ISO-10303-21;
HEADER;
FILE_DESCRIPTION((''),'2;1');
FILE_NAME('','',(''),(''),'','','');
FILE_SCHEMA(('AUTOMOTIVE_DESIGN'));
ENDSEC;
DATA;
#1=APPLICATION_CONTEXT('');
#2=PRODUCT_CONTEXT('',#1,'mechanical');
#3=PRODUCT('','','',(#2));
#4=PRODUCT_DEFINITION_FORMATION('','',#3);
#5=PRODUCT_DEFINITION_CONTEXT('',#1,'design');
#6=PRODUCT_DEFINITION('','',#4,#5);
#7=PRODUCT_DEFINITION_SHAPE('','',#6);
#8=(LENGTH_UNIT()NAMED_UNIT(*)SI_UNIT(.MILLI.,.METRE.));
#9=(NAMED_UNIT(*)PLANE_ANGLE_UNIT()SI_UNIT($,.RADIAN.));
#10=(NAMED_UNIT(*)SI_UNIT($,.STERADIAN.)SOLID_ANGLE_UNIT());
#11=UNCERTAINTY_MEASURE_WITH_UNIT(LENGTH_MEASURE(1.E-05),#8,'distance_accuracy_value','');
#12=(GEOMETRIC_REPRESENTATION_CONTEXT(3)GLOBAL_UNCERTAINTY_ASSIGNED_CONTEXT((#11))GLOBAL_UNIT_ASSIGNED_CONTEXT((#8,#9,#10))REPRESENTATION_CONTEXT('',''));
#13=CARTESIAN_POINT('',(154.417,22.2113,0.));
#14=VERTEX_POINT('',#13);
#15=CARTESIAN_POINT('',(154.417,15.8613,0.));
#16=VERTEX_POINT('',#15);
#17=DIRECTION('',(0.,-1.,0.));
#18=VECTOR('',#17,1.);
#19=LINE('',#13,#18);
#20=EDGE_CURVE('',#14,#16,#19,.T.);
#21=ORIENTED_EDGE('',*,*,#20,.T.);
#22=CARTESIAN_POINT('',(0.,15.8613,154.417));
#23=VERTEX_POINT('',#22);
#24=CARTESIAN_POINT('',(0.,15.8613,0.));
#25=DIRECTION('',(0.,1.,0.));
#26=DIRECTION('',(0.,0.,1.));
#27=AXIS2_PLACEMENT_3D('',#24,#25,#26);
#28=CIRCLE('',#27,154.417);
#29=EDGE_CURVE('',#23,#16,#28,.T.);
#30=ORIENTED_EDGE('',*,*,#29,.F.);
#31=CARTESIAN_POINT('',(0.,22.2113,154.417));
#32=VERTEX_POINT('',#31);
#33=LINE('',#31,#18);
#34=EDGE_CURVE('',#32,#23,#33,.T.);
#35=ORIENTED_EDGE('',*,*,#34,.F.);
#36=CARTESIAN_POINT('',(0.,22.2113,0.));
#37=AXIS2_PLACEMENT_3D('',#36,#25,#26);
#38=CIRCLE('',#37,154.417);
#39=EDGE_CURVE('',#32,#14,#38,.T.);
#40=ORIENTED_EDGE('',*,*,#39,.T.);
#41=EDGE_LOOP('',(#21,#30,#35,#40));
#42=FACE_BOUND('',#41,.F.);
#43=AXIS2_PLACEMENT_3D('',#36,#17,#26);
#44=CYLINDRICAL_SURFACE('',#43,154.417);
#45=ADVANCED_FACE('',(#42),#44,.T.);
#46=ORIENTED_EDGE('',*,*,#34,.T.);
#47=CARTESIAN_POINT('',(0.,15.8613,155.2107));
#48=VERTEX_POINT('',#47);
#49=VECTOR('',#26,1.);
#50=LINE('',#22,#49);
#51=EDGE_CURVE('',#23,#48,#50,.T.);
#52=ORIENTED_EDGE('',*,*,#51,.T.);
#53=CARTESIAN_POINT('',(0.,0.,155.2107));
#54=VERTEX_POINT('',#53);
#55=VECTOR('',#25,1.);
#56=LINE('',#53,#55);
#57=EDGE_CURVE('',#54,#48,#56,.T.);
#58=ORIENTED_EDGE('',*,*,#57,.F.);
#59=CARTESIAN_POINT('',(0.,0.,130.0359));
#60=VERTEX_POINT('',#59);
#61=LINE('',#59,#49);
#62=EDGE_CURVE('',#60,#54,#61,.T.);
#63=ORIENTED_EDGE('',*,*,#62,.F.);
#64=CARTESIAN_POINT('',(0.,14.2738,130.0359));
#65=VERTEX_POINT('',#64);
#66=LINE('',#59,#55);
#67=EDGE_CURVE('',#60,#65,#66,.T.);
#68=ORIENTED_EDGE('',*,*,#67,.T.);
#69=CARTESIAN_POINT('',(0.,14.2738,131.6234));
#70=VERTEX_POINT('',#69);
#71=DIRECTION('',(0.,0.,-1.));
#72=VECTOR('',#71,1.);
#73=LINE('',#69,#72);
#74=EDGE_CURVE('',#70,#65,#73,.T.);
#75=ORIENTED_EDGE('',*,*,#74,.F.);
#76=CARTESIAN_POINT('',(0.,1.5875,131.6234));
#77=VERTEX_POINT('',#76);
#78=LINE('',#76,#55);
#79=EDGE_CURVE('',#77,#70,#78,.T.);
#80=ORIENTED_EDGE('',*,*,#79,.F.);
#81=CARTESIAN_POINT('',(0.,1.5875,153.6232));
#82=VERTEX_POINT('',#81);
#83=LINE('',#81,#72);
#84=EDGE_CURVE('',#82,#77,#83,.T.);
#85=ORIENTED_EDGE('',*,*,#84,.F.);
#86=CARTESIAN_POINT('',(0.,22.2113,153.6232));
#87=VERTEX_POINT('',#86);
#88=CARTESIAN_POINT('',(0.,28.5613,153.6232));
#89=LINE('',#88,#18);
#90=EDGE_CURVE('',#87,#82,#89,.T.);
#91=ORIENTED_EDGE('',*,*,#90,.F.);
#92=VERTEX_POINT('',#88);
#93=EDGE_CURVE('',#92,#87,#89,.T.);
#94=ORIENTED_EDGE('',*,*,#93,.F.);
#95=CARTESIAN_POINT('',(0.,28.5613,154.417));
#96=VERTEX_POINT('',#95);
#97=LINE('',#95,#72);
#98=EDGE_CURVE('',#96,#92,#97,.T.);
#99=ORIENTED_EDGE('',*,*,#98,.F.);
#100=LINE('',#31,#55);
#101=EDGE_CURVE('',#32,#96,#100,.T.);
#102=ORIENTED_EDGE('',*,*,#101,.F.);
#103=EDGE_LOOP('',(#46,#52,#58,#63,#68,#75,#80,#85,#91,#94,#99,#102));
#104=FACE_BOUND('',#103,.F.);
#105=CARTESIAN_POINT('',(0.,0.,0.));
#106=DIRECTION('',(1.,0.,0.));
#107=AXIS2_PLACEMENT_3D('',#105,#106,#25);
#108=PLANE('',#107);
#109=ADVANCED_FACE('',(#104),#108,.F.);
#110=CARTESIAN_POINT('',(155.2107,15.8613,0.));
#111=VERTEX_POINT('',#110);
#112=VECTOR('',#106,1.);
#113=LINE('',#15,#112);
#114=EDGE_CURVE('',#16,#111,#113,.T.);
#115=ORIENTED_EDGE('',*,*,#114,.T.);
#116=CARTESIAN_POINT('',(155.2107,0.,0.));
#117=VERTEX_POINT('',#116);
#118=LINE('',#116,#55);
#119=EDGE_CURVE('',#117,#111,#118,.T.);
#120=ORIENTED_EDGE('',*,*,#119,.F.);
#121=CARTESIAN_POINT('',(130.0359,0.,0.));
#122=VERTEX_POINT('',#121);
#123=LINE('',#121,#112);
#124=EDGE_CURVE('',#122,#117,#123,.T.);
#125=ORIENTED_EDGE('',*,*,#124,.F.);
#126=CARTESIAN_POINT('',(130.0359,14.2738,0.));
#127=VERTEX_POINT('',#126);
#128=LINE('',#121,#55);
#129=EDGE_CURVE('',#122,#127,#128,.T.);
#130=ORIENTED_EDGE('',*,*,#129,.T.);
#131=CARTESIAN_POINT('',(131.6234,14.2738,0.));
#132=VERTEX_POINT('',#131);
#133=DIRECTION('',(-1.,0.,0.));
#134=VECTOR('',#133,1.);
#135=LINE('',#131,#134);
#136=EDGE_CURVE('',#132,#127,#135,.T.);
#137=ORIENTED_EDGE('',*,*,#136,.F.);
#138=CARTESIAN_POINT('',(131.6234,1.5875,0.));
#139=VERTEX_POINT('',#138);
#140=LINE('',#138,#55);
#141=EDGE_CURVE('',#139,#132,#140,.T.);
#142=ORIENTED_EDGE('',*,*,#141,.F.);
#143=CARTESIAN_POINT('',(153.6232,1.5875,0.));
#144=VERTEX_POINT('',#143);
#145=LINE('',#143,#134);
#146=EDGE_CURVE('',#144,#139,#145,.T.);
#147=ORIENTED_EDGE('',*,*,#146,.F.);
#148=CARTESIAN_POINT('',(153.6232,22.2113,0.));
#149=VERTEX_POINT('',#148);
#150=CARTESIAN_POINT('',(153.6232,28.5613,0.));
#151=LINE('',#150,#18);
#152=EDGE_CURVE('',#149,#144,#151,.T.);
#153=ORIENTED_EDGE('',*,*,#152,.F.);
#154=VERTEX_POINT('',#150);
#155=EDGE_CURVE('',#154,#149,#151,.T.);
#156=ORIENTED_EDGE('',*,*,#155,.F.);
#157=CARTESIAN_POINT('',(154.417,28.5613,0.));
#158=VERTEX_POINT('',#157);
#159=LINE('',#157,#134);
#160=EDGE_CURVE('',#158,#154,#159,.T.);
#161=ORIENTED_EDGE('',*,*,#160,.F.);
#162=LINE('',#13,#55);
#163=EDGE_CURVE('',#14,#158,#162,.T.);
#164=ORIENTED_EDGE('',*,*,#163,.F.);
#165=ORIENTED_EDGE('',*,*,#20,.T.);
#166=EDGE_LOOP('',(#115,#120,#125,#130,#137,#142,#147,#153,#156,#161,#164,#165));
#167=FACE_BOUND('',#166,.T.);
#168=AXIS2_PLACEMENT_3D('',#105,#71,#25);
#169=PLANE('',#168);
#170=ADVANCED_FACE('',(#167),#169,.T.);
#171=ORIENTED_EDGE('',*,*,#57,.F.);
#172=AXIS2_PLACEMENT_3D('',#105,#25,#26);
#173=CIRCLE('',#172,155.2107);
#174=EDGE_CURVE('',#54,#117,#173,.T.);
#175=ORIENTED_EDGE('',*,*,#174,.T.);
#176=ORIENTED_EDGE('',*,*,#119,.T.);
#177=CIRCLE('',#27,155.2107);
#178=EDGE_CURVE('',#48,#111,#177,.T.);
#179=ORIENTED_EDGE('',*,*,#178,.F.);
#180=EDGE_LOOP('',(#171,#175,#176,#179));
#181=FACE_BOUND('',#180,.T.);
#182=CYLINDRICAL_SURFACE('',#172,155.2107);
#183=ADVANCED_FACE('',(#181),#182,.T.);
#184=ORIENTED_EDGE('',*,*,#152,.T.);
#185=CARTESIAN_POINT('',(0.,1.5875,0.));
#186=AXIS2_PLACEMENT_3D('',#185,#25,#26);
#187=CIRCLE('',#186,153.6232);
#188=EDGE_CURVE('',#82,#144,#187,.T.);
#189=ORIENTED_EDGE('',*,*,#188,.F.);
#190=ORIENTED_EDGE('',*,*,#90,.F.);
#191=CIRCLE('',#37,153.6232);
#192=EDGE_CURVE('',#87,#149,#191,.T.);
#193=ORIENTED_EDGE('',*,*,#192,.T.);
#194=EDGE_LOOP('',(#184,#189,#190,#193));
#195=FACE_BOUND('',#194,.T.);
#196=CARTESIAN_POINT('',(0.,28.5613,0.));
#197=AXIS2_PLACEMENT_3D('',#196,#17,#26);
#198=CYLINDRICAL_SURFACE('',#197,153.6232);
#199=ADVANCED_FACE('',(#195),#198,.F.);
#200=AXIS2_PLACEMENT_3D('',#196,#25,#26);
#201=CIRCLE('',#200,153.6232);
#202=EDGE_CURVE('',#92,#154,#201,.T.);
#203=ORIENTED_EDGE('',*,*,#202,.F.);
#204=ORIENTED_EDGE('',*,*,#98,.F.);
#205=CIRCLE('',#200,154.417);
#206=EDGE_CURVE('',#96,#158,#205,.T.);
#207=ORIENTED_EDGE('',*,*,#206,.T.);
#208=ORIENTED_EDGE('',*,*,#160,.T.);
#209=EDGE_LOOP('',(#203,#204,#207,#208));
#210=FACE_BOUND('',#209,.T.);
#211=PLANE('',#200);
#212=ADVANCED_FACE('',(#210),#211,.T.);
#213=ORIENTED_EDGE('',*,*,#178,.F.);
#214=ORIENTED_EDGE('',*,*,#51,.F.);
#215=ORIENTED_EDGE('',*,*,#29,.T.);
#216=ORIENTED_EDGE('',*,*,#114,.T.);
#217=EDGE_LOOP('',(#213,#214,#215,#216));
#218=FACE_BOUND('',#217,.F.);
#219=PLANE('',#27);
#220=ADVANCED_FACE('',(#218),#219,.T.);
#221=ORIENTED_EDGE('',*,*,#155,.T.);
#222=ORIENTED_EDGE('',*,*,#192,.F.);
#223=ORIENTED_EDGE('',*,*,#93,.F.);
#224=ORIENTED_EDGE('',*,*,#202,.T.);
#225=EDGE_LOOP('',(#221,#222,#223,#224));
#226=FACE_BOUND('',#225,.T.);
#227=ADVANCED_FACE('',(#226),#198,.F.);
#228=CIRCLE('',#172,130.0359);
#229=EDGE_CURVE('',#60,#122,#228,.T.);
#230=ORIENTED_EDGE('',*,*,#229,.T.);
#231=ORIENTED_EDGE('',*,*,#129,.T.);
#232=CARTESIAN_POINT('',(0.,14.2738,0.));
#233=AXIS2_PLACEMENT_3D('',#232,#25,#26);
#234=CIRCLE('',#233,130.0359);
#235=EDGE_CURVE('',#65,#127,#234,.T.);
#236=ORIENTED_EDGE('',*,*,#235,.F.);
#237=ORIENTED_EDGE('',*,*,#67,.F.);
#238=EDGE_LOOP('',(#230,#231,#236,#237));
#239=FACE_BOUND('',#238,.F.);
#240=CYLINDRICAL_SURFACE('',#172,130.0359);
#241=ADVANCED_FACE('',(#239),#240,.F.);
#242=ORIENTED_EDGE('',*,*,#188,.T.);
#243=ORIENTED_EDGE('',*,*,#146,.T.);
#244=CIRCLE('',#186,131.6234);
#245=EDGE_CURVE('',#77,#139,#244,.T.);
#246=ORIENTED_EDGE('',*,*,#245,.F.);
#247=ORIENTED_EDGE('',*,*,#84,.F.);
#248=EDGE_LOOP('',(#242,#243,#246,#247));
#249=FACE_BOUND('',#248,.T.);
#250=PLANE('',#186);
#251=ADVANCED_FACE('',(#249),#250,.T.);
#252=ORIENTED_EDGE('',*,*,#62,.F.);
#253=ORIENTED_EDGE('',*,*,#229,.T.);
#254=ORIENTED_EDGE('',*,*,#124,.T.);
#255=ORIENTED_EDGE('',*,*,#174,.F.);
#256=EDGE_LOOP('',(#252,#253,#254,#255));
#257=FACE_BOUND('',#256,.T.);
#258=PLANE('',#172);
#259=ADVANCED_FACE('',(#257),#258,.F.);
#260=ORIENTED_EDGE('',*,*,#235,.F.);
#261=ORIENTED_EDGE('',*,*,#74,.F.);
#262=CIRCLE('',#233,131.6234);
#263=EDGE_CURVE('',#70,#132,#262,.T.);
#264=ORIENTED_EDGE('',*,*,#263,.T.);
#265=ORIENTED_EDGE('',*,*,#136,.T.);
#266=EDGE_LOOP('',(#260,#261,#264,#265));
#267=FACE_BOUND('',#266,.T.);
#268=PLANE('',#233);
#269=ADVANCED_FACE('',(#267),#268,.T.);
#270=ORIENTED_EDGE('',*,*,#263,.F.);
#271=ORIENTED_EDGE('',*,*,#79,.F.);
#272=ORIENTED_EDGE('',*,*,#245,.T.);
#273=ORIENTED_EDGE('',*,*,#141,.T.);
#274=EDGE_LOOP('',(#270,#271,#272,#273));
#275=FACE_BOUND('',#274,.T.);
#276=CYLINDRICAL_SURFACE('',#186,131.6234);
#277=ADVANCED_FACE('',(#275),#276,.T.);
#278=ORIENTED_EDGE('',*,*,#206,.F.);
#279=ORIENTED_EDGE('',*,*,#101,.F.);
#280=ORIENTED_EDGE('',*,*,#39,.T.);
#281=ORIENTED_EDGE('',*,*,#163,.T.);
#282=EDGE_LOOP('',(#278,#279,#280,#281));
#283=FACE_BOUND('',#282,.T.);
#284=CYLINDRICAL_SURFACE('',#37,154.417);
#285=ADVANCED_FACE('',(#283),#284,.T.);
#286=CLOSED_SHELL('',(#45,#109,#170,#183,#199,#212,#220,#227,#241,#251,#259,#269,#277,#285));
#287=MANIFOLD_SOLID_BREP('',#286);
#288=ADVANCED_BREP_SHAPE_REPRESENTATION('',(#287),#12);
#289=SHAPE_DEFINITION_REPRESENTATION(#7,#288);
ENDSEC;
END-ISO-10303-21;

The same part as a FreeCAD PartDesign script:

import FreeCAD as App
import Part
import Sketcher

V = App.Vector
Q = App.Units.Quantity


def add_polygon(sketch, points):
    """Adds a closed chain of lines whose ends are joined by coincident constraints."""
    first, n = sketch.GeometryCount, len(points)
    for a, b in zip(points, points[1:] + points[:1]):
        sketch.addGeometry(Part.LineSegment(App.Vector(*a, 0), App.Vector(*b, 0)), False)
    for i in range(n):
        sketch.addConstraint(Sketcher.Constraint("Coincident", first + i, 2, first + (i + 1) % n, 1))

doc = App.newDocument("Part")
body = doc.addObject("PartDesign::Body", "Body")

# Sketch on YZ plane
sketch1 = body.newObject("Sketcher::SketchObject", "Sketch")
sketch1.AttachmentSupport = (doc.getObject("YZ_Plane"), [""])
sketch1.MapMode = "FlatFace"
add_polygon(sketch1, [(0, 155.2), (0, 130), (14.3, 130), (14.3, 131.6), (1.6, 131.6), (1.6, 153.6), (28.6, 153.6), (28.6, 154.4), (15.9, 154.4), (15.9, 155.2)])  # lines 0-9
sketch1.addConstraint(Sketcher.Constraint("Vertical", 0))
sketch1.addConstraint(Sketcher.Constraint("Horizontal", 1))
sketch1.addConstraint(Sketcher.Constraint("Vertical", 2))
sketch1.addConstraint(Sketcher.Constraint("Horizontal", 3))
sketch1.addConstraint(Sketcher.Constraint("Vertical", 4))
sketch1.addConstraint(Sketcher.Constraint("Horizontal", 5))
sketch1.addConstraint(Sketcher.Constraint("Vertical", 6))
sketch1.addConstraint(Sketcher.Constraint("Horizontal", 7))
sketch1.addConstraint(Sketcher.Constraint("Vertical", 8))
sketch1.addConstraint(Sketcher.Constraint("Horizontal", 9))
sketch1.addConstraint(Sketcher.Constraint("PointOnObject", 0, 2, -2))
sketch1.addConstraint(Sketcher.Constraint("Equal", 6, 8))
sketch1.addConstraint(Sketcher.Constraint("DistanceY", 2, 1, 2, 2, Q("0.0625 in")))
sketch1.addConstraint(Sketcher.Constraint("DistanceY", 6, 1, 6, 2, Q("0.031252 in")))
sketch1.addConstraint(Sketcher.Constraint("DistanceX", 7, 2, 7, 1, Q("0.5 in")))
sketch1.addConstraint(Sketcher.Constraint("DistanceX", -1, 1, 3, 2, Q("0.0625 in")))
sketch1.addConstraint(Sketcher.Constraint("DistanceX", 2, 2, 7, 2, Q("0.0625 in")))
sketch1.addConstraint(Sketcher.Constraint("DistanceY", 0, 2, 0, 1, 25.1748))
sketch1.addConstraint(Sketcher.Constraint("DistanceY", -1, 1, 0, 2, 130.036))
sketch1.addConstraint(Sketcher.Constraint("DistanceX", 1, 1, 1, 2, 14.2738))
revolution = body.newObject("PartDesign::Revolution", "Revolution")
revolution.Profile = sketch1
revolution.ReferenceAxis = (sketch1, ["H_Axis"])
revolution.Angle = 90

doc.recompute()
